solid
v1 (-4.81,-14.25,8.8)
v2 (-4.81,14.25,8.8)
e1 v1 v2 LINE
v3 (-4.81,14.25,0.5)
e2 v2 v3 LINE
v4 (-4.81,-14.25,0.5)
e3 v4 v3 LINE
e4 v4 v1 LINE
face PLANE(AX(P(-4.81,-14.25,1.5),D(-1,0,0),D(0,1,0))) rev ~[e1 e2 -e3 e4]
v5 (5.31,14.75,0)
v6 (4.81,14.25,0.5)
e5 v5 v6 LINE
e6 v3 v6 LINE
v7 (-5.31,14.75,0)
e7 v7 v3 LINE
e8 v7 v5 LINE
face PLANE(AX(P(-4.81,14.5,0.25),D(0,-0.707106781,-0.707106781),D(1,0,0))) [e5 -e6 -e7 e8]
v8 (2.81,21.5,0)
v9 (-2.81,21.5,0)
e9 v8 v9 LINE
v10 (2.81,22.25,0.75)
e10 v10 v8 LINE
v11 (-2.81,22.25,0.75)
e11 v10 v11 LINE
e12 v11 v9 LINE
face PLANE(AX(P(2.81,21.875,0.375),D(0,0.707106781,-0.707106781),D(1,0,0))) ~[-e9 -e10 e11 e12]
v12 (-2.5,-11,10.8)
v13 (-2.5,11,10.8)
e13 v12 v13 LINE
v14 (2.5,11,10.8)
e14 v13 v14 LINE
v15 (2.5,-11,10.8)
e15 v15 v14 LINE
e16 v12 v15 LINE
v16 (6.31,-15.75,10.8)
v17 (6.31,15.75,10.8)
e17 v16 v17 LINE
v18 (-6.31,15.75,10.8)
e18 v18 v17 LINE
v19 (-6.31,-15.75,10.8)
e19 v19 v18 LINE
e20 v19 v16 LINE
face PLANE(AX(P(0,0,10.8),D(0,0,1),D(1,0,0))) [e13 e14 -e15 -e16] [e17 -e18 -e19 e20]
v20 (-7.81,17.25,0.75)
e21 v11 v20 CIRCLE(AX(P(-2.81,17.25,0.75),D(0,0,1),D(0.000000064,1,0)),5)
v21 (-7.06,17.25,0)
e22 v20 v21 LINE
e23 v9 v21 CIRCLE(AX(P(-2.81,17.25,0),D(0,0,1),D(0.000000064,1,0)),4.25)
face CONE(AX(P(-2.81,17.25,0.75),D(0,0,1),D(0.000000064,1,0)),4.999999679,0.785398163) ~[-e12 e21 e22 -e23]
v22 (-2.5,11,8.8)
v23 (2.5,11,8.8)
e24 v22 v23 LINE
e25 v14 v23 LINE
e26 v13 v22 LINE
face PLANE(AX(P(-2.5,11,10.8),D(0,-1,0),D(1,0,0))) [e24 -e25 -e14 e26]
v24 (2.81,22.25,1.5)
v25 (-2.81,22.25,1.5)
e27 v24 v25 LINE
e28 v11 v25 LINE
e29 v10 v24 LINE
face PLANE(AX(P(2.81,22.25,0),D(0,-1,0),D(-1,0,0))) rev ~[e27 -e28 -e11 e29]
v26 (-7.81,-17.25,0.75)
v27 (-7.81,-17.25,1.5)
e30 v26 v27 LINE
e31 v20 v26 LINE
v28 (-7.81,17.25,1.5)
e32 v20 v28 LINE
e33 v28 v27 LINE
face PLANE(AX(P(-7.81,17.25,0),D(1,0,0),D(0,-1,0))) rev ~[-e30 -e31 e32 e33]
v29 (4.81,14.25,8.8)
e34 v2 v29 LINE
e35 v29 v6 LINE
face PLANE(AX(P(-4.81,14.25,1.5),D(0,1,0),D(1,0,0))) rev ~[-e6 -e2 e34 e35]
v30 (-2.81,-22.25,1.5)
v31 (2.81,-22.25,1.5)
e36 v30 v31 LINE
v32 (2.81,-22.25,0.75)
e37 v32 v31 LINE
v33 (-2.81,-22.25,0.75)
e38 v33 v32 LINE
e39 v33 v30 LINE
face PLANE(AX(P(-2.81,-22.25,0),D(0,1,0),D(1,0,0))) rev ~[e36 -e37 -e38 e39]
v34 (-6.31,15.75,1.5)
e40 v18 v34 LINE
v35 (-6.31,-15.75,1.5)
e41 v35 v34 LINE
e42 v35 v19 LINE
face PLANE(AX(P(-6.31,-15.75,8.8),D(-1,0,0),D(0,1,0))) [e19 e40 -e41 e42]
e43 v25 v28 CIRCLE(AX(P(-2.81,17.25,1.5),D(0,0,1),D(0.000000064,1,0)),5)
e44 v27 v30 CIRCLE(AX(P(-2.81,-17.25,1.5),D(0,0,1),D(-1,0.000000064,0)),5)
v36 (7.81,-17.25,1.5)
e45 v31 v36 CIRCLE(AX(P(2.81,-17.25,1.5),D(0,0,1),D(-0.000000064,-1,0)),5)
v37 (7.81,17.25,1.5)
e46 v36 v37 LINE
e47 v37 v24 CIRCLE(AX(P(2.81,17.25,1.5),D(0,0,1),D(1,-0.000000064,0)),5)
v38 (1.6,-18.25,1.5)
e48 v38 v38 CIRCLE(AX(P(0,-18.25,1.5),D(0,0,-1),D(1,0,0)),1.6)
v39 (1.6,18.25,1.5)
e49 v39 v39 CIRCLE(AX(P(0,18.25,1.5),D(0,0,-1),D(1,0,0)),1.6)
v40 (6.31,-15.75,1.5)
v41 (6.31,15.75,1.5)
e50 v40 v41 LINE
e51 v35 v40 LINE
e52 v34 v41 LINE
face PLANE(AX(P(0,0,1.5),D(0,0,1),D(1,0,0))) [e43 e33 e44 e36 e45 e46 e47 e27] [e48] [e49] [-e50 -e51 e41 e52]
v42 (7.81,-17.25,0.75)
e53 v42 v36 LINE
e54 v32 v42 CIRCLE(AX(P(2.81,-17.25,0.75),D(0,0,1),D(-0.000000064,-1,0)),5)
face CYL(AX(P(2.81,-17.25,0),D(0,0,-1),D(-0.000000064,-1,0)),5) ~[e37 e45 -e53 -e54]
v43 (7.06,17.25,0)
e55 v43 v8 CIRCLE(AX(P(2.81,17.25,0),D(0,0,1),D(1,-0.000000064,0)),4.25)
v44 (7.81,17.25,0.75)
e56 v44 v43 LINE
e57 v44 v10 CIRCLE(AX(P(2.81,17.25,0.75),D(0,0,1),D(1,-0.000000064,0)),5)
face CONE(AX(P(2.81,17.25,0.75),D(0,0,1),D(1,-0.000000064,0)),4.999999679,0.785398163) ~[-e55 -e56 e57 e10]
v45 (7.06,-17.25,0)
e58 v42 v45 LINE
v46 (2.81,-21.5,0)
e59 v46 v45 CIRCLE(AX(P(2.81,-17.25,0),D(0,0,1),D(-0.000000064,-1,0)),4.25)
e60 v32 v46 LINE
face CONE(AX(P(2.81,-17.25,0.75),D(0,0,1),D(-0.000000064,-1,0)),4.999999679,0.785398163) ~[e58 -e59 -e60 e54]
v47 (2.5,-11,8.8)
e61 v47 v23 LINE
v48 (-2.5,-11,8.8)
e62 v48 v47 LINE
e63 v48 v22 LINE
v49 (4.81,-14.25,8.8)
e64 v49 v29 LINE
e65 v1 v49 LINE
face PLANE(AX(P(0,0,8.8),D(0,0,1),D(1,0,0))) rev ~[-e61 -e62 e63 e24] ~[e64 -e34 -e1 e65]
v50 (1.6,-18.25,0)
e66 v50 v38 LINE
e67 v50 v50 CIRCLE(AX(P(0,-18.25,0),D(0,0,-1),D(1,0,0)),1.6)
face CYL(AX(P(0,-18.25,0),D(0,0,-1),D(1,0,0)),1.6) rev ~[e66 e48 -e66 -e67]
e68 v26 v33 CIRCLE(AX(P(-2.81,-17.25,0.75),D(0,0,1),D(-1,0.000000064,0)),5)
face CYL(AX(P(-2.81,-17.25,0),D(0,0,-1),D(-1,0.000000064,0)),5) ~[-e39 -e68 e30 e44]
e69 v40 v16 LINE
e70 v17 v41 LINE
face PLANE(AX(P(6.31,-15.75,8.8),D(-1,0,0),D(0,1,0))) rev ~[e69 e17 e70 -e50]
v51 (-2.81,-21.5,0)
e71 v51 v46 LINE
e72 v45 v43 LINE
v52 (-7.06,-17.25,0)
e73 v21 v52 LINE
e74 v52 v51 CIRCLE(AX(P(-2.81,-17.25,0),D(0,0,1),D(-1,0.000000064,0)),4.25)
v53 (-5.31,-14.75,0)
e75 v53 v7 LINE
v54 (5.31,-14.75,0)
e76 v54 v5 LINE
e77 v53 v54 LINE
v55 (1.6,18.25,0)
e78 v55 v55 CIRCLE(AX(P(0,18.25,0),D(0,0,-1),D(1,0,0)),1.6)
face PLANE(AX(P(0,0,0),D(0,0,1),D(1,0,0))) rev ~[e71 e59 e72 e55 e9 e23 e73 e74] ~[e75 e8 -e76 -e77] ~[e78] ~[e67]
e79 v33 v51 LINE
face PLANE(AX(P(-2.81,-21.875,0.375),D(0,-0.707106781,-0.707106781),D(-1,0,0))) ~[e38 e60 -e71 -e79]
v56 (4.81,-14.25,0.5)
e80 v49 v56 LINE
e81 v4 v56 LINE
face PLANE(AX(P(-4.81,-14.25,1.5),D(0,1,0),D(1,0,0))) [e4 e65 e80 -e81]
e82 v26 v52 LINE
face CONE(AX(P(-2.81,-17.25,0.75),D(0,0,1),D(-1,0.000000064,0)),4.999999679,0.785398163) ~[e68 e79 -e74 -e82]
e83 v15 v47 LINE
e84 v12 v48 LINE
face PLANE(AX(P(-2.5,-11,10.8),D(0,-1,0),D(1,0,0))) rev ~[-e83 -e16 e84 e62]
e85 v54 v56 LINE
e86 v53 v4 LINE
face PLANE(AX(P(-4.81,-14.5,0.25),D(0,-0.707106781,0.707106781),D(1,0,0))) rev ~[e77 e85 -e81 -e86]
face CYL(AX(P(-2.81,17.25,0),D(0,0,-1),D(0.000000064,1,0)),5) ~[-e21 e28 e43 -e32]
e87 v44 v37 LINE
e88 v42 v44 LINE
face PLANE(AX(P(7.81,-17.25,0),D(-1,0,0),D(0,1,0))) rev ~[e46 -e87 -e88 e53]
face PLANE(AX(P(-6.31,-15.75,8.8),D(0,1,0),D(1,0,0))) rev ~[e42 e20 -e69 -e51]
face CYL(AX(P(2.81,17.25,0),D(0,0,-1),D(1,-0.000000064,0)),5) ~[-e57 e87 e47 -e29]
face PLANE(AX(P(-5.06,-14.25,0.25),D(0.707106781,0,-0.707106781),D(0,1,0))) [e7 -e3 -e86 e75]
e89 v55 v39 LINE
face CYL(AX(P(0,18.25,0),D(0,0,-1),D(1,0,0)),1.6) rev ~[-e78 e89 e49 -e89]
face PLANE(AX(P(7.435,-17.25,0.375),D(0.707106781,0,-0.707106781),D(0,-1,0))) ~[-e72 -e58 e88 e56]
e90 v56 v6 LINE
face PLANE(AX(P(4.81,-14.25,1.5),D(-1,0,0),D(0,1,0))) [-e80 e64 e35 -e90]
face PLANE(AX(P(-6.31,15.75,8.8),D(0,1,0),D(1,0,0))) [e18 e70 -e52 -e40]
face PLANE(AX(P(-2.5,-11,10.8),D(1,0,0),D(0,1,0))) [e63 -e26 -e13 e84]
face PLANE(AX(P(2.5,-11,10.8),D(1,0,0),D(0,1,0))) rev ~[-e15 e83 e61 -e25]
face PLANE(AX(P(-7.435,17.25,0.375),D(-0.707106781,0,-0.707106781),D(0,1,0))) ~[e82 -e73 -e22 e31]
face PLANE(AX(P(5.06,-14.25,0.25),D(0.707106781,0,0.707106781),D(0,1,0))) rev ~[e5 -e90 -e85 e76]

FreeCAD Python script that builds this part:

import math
import FreeCAD as App
import Part
import Sketcher
Q = App.Units.Quantity


def edges_at(feature, points):
    """Names of the edges that pass closest to the given points."""
    edges = feature.Shape.Edges
    near = lambda p: min(range(len(edges)), key=lambda i: edges[i].distToShape(Part.Vertex(*p))[0])
    return sorted({f"Edge{near(p) + 1}" for p in points})

doc = App.newDocument("Part")
body = doc.addObject("PartDesign::Body", "Body")

# Sketch on XY plane
sketch1 = doc.addObject("Sketcher::SketchObject", "Sketch")
body.addObject(sketch1)
sketch1.AttachmentSupport = (doc.XY_Plane, [""])
sketch1.MapMode = "FlatFace"
sketch1.addGeometry([
    Part.LineSegment(App.Vector(2.81, 22.25, 0), App.Vector(-2.81, 22.25, 0)),  # 0
    Part.ArcOfCircle(Part.Circle(App.Vector(-2.81, 17.25, 0), App.Vector(0, 0, 1), 5), math.radians(89.999996), math.radians(180.000004)),  # 1
    Part.LineSegment(App.Vector(-7.81, 17.25, 0), App.Vector(-7.81, -17.25, 0)),  # 2
    Part.ArcOfCircle(Part.Circle(App.Vector(-2.81, -17.25, 0), App.Vector(0, 0, 1), 5), math.radians(179.999996), math.radians(270.000004)),  # 3
    Part.LineSegment(App.Vector(-2.81, -22.25, 0), App.Vector(2.81, -22.25, 0)),  # 4
    Part.ArcOfCircle(Part.Circle(App.Vector(2.81, -17.25, 0), App.Vector(0, 0, 1), 5), math.radians(-90.000004), math.radians(0.000004)),  # 5
    Part.LineSegment(App.Vector(7.81, -17.25, 0), App.Vector(7.81, 17.25, 0)),  # 6
    Part.ArcOfCircle(Part.Circle(App.Vector(2.81, 17.25, 0), App.Vector(0, 0, 1), 5), math.radians(-0.000004), math.radians(90.000004)),  # 7
    Part.LineSegment(App.Vector(4.81, -14.25, 0), App.Vector(-4.81, -14.25, 0)),  # 8
    Part.LineSegment(App.Vector(-4.81, -14.25, 0), App.Vector(-4.81, 14.25, 0)),  # 9
    Part.LineSegment(App.Vector(-4.81, 14.25, 0), App.Vector(4.81, 14.25, 0)),  # 10
    Part.LineSegment(App.Vector(4.81, 14.25, 0), App.Vector(4.81, -14.25, 0)),  # 11
], False)
sketch1.addConstraint([
    Sketcher.Constraint("Tangent", 0, 2, 1, 1),
    Sketcher.Constraint("Tangent", 1, 2, 2, 1),
    Sketcher.Constraint("Tangent", 2, 2, 3, 1),
    Sketcher.Constraint("Tangent", 3, 2, 4, 1),
    Sketcher.Constraint("Tangent", 4, 2, 5, 1),
    Sketcher.Constraint("Tangent", 5, 2, 6, 1),
    Sketcher.Constraint("Tangent", 6, 2, 7, 1),
    Sketcher.Constraint("Tangent", 7, 2, 0, 1),
    Sketcher.Constraint("Coincident", 8, 2, 9, 1),
    Sketcher.Constraint("Coincident", 9, 2, 10, 1),
    Sketcher.Constraint("Coincident", 10, 2, 11, 1),
    Sketcher.Constraint("Coincident", 11, 2, 8, 1),
    Sketcher.Constraint("Horizontal", 0),
    Sketcher.Constraint("Vertical", 2),
    Sketcher.Constraint("Horizontal", 4),
    Sketcher.Constraint("Vertical", 6),
    Sketcher.Constraint("Horizontal", 8),
    Sketcher.Constraint("Vertical", 9),
    Sketcher.Constraint("Horizontal", 10),
    Sketcher.Constraint("Vertical", 11),
    Sketcher.Constraint("Equal", 1, 3),
    Sketcher.Constraint("Equal", 3, 5),
    Sketcher.Constraint("Equal", 5, 7),
    Sketcher.Constraint("Symmetric", 1, 3, 5, 3, -1, 1),
    Sketcher.Constraint("Symmetric", 8, 2, 10, 2, -1, 1),
    Sketcher.Constraint("Radius", 1, Q("5 mm")),
    Sketcher.Constraint("DistanceY", 2, 2, 2, 1, Q("34.5 mm")),
    Sketcher.Constraint("DistanceY", 9, 1, 9, 2, Q("28.5 mm")),
    Sketcher.Constraint("DistanceX", 8, 2, 3, 3, Q("2 mm")),
    Sketcher.Constraint("DistanceX", 0, 2, 0, 1, Q("5.62 mm")),
])
pad1 = doc.addObject("PartDesign::Pad", "Pad")
body.addObject(pad1)
pad1.Profile = sketch1
pad1.Length = 1.5

# Sketch on XY plane
sketch2 = doc.addObject("Sketcher::SketchObject", "Sketch001")
body.addObject(sketch2)
sketch2.AttachmentSupport = (doc.XY_Plane, [""])
sketch2.MapMode = "FlatFace"
sketch2.AttachmentOffset = App.Placement(App.Vector(0, 0, 1.5), App.Rotation())
sketch2.addGeometry([
    Part.LineSegment(App.Vector(-6.31, 15.75, 0), App.Vector(-6.31, -15.75, 0)),  # 0
    Part.LineSegment(App.Vector(-6.31, -15.75, 0), App.Vector(6.31, -15.75, 0)),  # 1
    Part.LineSegment(App.Vector(6.31, -15.75, 0), App.Vector(6.31, 15.75, 0)),  # 2
    Part.LineSegment(App.Vector(6.31, 15.75, 0), App.Vector(-6.31, 15.75, 0)),  # 3
    Part.LineSegment(App.Vector(4.81, -14.25, 0), App.Vector(-4.81, -14.25, 0)),  # 4
    Part.LineSegment(App.Vector(-4.81, -14.25, 0), App.Vector(-4.81, 14.25, 0)),  # 5
    Part.LineSegment(App.Vector(-4.81, 14.25, 0), App.Vector(4.81, 14.25, 0)),  # 6
    Part.LineSegment(App.Vector(4.81, 14.25, 0), App.Vector(4.81, -14.25, 0)),  # 7
], False)
sketch2.addConstraint([
    Sketcher.Constraint("Coincident", 0, 2, 1, 1),
    Sketcher.Constraint("Coincident", 1, 2, 2, 1),
    Sketcher.Constraint("Coincident", 2, 2, 3, 1),
    Sketcher.Constraint("Coincident", 3, 2, 0, 1),
    Sketcher.Constraint("Coincident", 4, 2, 5, 1),
    Sketcher.Constraint("Coincident", 5, 2, 6, 1),
    Sketcher.Constraint("Coincident", 6, 2, 7, 1),
    Sketcher.Constraint("Coincident", 7, 2, 4, 1),
    Sketcher.Constraint("Vertical", 0),
    Sketcher.Constraint("Horizontal", 1),
    Sketcher.Constraint("Vertical", 2),
    Sketcher.Constraint("Horizontal", 3),
    Sketcher.Constraint("Horizontal", 4),
    Sketcher.Constraint("Vertical", 5),
    Sketcher.Constraint("Horizontal", 6),
    Sketcher.Constraint("Vertical", 7),
    Sketcher.Constraint("Symmetric", 0, 2, 2, 2, -1, 1),
    Sketcher.Constraint("Symmetric", 4, 2, 6, 2, -1, 1),
    Sketcher.Constraint("DistanceY", 0, 2, 0, 1, Q("31.5 mm")),
    Sketcher.Constraint("DistanceY", 5, 1, 5, 2, Q("28.5 mm")),
    Sketcher.Constraint("DistanceX", 1, 1, 1, 2, Q("12.62 mm")),
    Sketcher.Constraint("DistanceX", 4, 2, 4, 1, Q("9.62 mm")),
])
pad2 = doc.addObject("PartDesign::Pad", "Pad001")
body.addObject(pad2)
pad2.Profile = sketch2
pad2.Length = 7.3

# Sketch on XY plane
sketch3 = doc.addObject("Sketcher::SketchObject", "Sketch002")
body.addObject(sketch3)
sketch3.AttachmentSupport = (doc.XY_Plane, [""])
sketch3.MapMode = "FlatFace"
sketch3.AttachmentOffset = App.Placement(App.Vector(0, 0, 8.8), App.Rotation())
sketch3.addGeometry([
    Part.LineSegment(App.Vector(-6.31, 15.75, 0), App.Vector(-6.31, -15.75, 0)),
    Part.LineSegment(App.Vector(-6.31, -15.75, 0), App.Vector(6.31, -15.75, 0)),
    Part.LineSegment(App.Vector(6.31, -15.75, 0), App.Vector(6.31, 15.75, 0)),
    Part.LineSegment(App.Vector(6.31, 15.75, 0), App.Vector(-6.31, 15.75, 0)),
], False)
sketch3.addConstraint([
    Sketcher.Constraint("Coincident", 0, 2, 1, 1),
    Sketcher.Constraint("Coincident", 1, 2, 2, 1),
    Sketcher.Constraint("Coincident", 2, 2, 3, 1),
    Sketcher.Constraint("Coincident", 3, 2, 0, 1),
    Sketcher.Constraint("Vertical", 0),
    Sketcher.Constraint("Horizontal", 1),
    Sketcher.Constraint("Vertical", 2),
    Sketcher.Constraint("Horizontal", 3),
    Sketcher.Constraint("Symmetric", 0, 2, 2, 2, -1, 1),
    Sketcher.Constraint("DistanceY", 0, 2, 0, 1, Q("31.5 mm")),
    Sketcher.Constraint("DistanceX", 1, 1, 1, 2, Q("12.62 mm")),
])
pad3 = doc.addObject("PartDesign::Pad", "Pad002")
body.addObject(pad3)
pad3.Profile = sketch3
pad3.Length = 2

# Sketch on XY plane
sketch4 = doc.addObject("Sketcher::SketchObject", "Sketch003")
body.addObject(sketch4)
sketch4.AttachmentSupport = (doc.XY_Plane, [""])
sketch4.MapMode = "FlatFace"
sketch4.AttachmentOffset = App.Placement(App.Vector(0, 0, 10.8), App.Rotation())
sketch4.addGeometry([
    Part.LineSegment(App.Vector(-2.5, 11, 0), App.Vector(-2.5, -11, 0)),
    Part.LineSegment(App.Vector(-2.5, -11, 0), App.Vector(2.5, -11, 0)),
    Part.LineSegment(App.Vector(2.5, -11, 0), App.Vector(2.5, 11, 0)),
    Part.LineSegment(App.Vector(2.5, 11, 0), App.Vector(-2.5, 11, 0)),
], False)
sketch4.addConstraint([
    Sketcher.Constraint("Coincident", 0, 2, 1, 1),
    Sketcher.Constraint("Coincident", 1, 2, 2, 1),
    Sketcher.Constraint("Coincident", 2, 2, 3, 1),
    Sketcher.Constraint("Coincident", 3, 2, 0, 1),
    Sketcher.Constraint("Vertical", 0),
    Sketcher.Constraint("Horizontal", 1),
    Sketcher.Constraint("Vertical", 2),
    Sketcher.Constraint("Horizontal", 3),
    Sketcher.Constraint("Symmetric", 0, 2, 2, 2, -1, 1),
    Sketcher.Constraint("DistanceX", 1, 1, 1, 2, Q("5 mm")),
    Sketcher.Constraint("DistanceY", 0, 2, 0, 1, Q("22 mm")),
])
pocket1 = doc.addObject("PartDesign::Pocket", "Pocket")
body.addObject(pocket1)
pocket1.Profile = sketch4
pocket1.Length = 25

# Sketch on XY plane
sketch5 = doc.addObject("Sketcher::SketchObject", "Sketch004")
body.addObject(sketch5)
sketch5.AttachmentSupport = (doc.XY_Plane, [""])
sketch5.MapMode = "FlatFace"
sketch5.addGeometry([
    Part.Circle(App.Vector(0, -18.25, 0), App.Vector(0, 0, 1), 1.6),
    Part.Circle(App.Vector(0, 18.25, 0), App.Vector(0, 0, 1), 1.6),
], False)
sketch5.addConstraint([
    Sketcher.Constraint("Equal", 0, 1),
    Sketcher.Constraint("Symmetric", 0, 3, 1, 3, -1, 1),
    Sketcher.Constraint("PointOnObject", 0, 3, -2),
    Sketcher.Constraint("Diameter", 0, Q("3.2 mm")),
    Sketcher.Constraint("DistanceY", 0, 3, 1, 3, Q("36.5 mm")),
])
pocket2 = doc.addObject("PartDesign::Pocket", "Pocket001")
body.addObject(pocket2)
pocket2.Profile = sketch5
pocket2.Length = 25
pocket2.Reversed = True
doc.recompute()

chamfer = doc.addObject("PartDesign::Chamfer", "Chamfer")
body.addObject(chamfer)
chamfer.Base = (pocket2, edges_at(pocket2, [(7.81, 0, 0)]))
chamfer.Size = 0.75
doc.recompute()

chamfer2 = doc.addObject("PartDesign::Chamfer", "Chamfer001")
body.addObject(chamfer2)
chamfer2.Base = (chamfer, edges_at(chamfer, [
    (0, -14.25, 0),
    (4.81, 0, 0),
    (-4.81, 0, 0),
    (0, 14.25, 0),
]))
chamfer2.Size = 0.5

doc.recompute()
